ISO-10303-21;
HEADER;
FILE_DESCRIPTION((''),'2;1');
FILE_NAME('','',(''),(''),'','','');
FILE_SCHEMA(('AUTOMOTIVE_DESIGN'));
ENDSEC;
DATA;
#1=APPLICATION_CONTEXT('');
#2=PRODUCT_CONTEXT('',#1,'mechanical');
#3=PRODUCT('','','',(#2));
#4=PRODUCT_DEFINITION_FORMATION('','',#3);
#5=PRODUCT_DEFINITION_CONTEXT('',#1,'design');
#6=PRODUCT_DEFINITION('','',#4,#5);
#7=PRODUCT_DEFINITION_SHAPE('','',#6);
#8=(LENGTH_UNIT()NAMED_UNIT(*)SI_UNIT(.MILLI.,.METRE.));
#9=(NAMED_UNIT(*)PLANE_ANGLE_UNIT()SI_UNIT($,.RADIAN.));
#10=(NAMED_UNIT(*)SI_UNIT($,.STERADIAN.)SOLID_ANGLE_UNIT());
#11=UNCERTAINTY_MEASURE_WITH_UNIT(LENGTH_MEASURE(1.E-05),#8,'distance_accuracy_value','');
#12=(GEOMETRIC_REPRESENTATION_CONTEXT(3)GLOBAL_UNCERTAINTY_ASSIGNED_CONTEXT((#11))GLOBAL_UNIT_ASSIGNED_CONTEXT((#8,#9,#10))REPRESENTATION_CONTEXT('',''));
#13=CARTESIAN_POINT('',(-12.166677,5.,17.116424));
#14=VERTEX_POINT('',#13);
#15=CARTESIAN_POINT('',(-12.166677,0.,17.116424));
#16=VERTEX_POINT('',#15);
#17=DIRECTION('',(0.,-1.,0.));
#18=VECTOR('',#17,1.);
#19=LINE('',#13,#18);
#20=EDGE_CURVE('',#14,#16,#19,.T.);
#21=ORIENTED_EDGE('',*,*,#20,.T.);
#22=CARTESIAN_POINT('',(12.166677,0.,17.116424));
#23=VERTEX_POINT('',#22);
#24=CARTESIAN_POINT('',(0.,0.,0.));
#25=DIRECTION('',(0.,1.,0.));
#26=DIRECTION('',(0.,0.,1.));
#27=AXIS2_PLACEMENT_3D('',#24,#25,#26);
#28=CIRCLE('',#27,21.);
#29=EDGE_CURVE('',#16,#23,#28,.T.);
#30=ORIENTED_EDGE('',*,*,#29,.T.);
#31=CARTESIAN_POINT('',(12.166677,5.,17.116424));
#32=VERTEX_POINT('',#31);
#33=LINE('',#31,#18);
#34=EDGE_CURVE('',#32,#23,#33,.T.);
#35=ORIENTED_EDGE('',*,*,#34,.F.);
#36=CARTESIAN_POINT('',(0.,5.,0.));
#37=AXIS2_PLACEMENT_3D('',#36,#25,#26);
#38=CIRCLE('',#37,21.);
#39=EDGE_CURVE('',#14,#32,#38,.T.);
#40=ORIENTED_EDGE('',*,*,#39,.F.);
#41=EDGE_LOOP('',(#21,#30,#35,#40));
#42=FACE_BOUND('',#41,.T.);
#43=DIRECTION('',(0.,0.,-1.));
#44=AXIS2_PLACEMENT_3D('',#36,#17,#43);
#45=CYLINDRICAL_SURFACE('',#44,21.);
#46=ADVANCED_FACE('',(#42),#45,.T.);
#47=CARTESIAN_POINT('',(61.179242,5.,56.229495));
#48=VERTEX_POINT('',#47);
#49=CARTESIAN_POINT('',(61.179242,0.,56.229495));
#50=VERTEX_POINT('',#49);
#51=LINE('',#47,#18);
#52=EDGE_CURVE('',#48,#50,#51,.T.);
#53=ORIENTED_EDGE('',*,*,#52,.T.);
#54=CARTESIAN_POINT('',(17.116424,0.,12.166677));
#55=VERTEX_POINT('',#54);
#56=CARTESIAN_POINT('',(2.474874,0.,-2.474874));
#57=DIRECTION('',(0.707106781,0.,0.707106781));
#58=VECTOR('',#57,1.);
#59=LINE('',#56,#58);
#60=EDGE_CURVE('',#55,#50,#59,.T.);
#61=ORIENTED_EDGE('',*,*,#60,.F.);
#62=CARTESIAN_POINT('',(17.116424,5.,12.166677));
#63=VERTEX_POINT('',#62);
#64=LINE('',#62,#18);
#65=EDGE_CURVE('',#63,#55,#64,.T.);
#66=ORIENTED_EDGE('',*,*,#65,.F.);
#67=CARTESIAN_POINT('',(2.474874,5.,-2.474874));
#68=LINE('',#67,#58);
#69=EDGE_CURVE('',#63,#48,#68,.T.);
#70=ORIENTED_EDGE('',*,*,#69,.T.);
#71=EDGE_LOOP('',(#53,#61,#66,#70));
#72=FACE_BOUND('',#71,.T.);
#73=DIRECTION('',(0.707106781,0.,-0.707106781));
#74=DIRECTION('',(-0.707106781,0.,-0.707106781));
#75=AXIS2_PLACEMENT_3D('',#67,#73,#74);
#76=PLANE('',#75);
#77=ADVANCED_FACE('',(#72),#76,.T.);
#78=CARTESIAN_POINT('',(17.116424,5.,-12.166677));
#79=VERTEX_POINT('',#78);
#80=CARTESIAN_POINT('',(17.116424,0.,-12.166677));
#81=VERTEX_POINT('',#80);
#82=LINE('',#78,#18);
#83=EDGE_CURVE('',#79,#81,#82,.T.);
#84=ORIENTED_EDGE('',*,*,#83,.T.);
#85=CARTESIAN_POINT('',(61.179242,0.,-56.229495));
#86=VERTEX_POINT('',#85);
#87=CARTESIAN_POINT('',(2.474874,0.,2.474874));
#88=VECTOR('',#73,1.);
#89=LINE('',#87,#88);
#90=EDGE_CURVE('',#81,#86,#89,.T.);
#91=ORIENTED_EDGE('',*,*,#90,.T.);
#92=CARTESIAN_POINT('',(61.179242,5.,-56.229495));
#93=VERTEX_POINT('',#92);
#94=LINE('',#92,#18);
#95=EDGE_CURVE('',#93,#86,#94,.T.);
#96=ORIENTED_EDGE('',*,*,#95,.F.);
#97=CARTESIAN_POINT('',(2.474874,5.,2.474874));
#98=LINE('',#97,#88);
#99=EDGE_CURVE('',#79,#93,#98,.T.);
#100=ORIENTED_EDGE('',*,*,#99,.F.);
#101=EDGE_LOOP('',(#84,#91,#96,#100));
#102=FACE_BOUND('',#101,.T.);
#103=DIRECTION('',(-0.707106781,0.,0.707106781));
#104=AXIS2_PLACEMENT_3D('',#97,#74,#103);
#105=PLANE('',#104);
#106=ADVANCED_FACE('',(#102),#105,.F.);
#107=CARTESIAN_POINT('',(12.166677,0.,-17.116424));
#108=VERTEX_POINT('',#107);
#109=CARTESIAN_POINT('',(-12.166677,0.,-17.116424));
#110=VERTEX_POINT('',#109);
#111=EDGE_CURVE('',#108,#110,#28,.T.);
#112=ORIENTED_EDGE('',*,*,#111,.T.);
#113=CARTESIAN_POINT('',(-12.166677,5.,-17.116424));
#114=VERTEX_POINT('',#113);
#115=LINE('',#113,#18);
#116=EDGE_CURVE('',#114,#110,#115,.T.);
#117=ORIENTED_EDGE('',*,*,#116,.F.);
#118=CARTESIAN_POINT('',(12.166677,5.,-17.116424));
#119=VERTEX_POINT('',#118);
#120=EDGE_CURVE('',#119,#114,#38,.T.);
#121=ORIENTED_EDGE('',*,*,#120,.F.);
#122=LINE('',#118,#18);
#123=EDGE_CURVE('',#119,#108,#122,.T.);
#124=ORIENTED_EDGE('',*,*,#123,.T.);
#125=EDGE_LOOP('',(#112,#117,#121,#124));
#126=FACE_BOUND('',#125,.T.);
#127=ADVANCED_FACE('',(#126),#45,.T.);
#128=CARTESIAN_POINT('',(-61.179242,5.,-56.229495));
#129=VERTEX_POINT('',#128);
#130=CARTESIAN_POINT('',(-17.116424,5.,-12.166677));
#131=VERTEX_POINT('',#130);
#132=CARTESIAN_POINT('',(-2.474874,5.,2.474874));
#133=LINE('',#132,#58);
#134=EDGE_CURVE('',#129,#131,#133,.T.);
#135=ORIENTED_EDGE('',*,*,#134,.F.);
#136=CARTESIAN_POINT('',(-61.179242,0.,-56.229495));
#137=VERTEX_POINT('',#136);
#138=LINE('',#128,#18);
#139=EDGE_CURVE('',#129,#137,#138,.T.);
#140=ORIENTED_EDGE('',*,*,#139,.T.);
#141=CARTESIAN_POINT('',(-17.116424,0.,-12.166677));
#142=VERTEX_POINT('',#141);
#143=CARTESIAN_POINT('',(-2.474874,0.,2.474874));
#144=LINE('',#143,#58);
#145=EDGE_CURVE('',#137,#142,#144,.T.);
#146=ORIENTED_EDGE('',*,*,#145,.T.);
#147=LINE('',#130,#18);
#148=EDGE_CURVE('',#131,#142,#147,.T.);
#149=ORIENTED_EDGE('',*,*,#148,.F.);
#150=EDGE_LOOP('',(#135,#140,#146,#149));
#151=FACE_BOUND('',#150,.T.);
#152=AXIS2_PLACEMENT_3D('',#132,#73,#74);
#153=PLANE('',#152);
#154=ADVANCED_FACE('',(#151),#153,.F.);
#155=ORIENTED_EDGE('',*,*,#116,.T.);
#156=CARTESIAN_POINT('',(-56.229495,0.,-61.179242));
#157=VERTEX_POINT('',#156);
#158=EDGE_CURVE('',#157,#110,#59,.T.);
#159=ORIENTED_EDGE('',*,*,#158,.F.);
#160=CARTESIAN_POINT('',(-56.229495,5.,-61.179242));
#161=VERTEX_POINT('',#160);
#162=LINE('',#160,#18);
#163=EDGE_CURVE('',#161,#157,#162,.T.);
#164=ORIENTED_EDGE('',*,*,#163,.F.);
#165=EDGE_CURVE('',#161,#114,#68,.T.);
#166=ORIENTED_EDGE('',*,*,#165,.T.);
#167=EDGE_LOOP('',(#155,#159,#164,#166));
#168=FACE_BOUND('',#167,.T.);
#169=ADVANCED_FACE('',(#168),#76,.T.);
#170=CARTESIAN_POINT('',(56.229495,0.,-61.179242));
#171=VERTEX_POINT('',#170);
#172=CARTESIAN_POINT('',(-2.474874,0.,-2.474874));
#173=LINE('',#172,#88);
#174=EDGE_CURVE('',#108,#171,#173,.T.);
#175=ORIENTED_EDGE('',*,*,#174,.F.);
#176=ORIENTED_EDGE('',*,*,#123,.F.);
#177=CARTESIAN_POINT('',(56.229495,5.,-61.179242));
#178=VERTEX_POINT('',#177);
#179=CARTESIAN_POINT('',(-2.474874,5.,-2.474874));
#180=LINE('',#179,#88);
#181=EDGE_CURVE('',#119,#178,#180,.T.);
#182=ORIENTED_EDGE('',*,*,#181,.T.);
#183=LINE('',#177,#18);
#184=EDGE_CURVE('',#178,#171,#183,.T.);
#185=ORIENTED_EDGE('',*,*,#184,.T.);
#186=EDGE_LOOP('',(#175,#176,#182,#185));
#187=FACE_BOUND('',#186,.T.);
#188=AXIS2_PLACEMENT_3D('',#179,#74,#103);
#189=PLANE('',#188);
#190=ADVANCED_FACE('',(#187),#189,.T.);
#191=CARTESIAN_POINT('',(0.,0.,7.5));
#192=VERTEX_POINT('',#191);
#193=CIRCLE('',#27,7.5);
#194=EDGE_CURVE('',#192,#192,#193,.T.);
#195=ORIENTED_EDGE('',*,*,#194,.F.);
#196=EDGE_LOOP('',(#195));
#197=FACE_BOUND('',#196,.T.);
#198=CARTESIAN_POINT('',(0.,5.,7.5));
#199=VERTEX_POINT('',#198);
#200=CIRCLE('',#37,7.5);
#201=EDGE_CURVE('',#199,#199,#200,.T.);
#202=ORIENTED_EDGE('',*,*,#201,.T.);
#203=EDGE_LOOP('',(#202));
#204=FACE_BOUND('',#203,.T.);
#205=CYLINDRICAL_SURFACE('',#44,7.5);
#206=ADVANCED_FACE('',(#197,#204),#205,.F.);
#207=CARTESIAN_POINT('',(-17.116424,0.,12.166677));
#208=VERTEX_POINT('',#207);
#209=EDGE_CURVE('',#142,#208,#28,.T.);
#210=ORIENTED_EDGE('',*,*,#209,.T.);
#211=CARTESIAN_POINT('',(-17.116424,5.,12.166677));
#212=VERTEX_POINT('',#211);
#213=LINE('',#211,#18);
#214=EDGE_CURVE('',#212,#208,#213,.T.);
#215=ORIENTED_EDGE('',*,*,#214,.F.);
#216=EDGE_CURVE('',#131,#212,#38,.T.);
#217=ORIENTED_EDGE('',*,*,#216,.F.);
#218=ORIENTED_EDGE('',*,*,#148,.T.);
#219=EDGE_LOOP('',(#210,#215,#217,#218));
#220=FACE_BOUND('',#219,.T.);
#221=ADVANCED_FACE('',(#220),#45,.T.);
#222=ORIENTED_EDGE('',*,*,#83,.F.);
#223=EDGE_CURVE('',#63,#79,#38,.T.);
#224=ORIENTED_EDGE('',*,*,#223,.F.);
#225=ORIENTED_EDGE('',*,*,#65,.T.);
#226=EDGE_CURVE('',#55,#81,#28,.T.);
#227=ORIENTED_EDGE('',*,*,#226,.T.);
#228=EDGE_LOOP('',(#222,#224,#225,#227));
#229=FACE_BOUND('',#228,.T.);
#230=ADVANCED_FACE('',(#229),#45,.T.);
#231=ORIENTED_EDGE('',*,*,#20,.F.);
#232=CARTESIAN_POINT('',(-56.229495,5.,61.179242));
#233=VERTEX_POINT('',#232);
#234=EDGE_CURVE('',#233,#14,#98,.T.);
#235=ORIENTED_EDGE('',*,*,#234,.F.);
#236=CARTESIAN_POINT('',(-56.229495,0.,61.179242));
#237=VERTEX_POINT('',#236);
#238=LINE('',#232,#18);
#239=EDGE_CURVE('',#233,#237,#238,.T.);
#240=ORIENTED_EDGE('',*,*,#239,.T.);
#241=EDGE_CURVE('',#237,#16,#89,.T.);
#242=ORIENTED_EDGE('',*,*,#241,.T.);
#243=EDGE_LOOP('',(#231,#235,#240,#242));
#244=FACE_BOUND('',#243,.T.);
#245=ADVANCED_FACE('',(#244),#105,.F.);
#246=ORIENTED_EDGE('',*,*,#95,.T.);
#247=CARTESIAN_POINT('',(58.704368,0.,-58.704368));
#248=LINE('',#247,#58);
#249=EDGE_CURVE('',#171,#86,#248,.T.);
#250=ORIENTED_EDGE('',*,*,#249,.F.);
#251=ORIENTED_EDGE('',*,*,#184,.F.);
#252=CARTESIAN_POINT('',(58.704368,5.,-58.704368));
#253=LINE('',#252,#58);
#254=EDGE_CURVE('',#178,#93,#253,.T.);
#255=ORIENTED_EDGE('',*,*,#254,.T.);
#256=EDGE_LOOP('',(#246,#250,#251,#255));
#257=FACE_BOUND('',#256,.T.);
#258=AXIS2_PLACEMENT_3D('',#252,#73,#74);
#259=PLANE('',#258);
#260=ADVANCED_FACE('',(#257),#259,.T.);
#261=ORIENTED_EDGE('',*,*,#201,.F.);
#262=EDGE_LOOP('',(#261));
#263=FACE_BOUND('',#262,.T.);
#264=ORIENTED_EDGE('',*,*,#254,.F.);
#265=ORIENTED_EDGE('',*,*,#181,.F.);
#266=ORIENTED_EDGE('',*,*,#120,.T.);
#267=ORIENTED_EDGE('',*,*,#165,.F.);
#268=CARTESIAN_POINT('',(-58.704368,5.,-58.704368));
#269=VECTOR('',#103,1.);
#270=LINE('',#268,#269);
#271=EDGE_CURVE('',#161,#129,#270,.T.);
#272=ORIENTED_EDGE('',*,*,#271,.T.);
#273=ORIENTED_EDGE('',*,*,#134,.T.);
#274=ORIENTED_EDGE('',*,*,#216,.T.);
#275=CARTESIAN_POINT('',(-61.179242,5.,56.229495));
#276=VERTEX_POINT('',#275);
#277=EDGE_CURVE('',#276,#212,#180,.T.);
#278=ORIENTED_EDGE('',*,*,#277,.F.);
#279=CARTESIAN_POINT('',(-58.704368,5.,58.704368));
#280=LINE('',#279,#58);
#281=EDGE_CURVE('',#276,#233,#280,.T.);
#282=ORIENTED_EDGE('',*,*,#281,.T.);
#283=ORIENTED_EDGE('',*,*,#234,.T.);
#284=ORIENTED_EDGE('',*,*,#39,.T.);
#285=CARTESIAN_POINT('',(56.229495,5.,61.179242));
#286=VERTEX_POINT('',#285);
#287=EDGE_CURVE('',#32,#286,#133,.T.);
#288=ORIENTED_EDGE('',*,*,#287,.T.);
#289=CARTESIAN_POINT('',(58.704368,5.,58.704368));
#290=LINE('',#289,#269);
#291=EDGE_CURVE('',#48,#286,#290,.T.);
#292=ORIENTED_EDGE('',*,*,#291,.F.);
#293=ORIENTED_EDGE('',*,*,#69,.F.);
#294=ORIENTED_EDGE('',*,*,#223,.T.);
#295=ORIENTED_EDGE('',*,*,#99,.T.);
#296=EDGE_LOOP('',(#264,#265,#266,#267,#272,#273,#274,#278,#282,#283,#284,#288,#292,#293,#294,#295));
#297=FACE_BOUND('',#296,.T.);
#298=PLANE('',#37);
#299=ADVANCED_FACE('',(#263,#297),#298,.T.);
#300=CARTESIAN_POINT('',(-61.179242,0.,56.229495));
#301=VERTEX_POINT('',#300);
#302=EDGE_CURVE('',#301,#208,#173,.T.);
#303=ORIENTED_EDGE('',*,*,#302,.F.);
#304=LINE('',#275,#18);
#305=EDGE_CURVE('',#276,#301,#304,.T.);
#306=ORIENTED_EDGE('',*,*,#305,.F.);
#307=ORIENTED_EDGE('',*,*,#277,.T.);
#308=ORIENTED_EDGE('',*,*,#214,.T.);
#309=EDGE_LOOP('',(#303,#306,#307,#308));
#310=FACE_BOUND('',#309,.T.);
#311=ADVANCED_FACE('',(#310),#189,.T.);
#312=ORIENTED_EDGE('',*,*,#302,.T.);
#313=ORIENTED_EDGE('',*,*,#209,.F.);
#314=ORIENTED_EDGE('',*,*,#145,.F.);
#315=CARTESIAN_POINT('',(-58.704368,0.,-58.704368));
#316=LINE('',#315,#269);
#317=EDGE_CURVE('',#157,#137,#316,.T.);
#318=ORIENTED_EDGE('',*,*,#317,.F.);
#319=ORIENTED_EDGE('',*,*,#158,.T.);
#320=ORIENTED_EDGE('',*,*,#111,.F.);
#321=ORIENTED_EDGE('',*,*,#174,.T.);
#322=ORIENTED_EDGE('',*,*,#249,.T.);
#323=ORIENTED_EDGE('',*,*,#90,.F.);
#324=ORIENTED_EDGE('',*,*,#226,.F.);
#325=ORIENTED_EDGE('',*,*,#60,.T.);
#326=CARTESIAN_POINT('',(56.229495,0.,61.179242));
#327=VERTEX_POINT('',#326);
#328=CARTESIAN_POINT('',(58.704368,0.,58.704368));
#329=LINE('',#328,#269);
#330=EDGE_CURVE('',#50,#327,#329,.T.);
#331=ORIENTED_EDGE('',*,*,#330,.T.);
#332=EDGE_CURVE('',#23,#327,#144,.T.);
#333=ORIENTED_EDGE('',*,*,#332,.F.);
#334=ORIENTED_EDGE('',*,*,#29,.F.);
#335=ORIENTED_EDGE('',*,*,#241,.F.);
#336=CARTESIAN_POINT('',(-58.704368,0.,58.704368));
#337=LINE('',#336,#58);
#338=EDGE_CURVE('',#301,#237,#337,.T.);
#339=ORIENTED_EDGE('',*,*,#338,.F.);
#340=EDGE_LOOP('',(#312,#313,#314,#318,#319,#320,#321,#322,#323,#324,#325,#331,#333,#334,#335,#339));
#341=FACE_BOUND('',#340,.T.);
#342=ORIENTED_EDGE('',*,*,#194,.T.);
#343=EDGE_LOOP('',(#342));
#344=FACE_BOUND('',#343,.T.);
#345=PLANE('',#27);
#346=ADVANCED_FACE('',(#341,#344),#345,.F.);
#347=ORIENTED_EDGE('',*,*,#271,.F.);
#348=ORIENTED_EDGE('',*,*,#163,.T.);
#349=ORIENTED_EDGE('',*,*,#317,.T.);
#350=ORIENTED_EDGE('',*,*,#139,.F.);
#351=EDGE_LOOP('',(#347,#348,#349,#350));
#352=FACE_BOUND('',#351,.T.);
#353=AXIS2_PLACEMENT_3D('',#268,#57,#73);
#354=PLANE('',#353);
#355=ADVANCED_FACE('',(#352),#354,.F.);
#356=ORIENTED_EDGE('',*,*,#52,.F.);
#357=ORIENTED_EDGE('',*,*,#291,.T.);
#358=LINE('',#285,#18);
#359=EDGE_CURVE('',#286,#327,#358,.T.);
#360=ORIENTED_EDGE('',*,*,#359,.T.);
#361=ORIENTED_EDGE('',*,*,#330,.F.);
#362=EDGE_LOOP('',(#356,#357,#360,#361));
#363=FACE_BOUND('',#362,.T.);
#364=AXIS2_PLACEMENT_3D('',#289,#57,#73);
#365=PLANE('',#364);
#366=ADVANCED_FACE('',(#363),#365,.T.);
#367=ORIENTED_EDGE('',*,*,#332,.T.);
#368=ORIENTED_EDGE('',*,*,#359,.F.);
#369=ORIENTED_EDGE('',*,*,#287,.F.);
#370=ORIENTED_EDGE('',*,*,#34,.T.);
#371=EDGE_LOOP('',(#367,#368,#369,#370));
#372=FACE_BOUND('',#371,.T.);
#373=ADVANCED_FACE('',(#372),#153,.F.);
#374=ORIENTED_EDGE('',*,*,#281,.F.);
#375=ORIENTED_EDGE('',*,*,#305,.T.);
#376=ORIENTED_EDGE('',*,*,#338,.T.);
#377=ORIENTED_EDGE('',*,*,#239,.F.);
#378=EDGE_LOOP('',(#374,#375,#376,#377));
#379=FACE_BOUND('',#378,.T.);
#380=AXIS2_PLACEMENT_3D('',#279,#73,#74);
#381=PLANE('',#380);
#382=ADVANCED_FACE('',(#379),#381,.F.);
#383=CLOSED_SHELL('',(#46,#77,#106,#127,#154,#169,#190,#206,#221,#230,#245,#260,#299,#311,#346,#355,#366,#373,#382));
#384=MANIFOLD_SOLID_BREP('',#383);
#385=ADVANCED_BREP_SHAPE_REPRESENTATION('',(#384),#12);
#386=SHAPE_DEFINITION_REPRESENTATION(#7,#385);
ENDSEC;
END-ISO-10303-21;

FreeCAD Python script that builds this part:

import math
import FreeCAD as App
import Part
import Sketcher

V = App.Vector
Q = App.Units.Quantity

doc = App.newDocument("Part")
body = doc.addObject("PartDesign::Body", "Body")

# Sketch on XZ plane
sketch1 = body.newObject("Sketcher::SketchObject", "Sketch")
sketch1.AttachmentSupport = (doc.getObject("XZ_Plane"), [""])
sketch1.MapMode = "FlatFace"
sketch1.addGeometry([
    Part.LineSegment(V(-17, 12, 0), V(-61, 56, 0)),  # 0
    Part.LineSegment(V(-61, 56, 0), V(-56, 61, 0)),  # 1
    Part.LineSegment(V(-56, 61, 0), V(-12, 17, 0)),  # 2
    Part.ArcOfCircle(Part.Circle(V(0, 0, 0), V(0, 0, 1), 21), math.radians(55), math.radians(125)),  # 3
    Part.LineSegment(V(12, 17, 0), V(56, 61, 0)),  # 4
    Part.LineSegment(V(56, 61, 0), V(61, 56, 0)),  # 5
    Part.LineSegment(V(61, 56, 0), V(17, 12, 0)),  # 6
    Part.ArcOfCircle(Part.Circle(V(0, 0, 0), V(0, 0, 1), 21), math.radians(-35), math.radians(35)),  # 7
    Part.LineSegment(V(17, -12, 0), V(61, -56, 0)),  # 8
    Part.LineSegment(V(61, -56, 0), V(56, -61, 0)),  # 9
    Part.LineSegment(V(56, -61, 0), V(12, -17, 0)),  # 10
    Part.ArcOfCircle(Part.Circle(V(0, 0, 0), V(0, 0, 1), 21), math.radians(-125), math.radians(-55)),  # 11
    Part.LineSegment(V(-12, -17, 0), V(-56, -61, 0)),  # 12
    Part.LineSegment(V(-56, -61, 0), V(-61, -56, 0)),  # 13
    Part.LineSegment(V(-61, -56, 0), V(-17, -12, 0)),  # 14
    Part.ArcOfCircle(Part.Circle(V(0, 0, 0), V(0, 0, 1), 21), math.radians(145), math.radians(215)),  # 15
    Part.Circle(V(0, 0, 0), V(0, 0, 1), 8),  # 16
], False)
sketch1.addConstraint([
    Sketcher.Constraint("Coincident", 0, 2, 1, 1),
    Sketcher.Constraint("Coincident", 1, 2, 2, 1),
    Sketcher.Constraint("Coincident", 2, 2, 3, 2),
    Sketcher.Constraint("Coincident", 3, 1, 4, 1),
    Sketcher.Constraint("Coincident", 4, 2, 5, 1),
    Sketcher.Constraint("Coincident", 5, 2, 6, 1),
    Sketcher.Constraint("Coincident", 6, 2, 7, 2),
    Sketcher.Constraint("Coincident", 7, 1, 8, 1),
    Sketcher.Constraint("Coincident", 8, 2, 9, 1),
    Sketcher.Constraint("Coincident", 9, 2, 10, 1),
    Sketcher.Constraint("Coincident", 10, 2, 11, 2),
    Sketcher.Constraint("Coincident", 11, 1, 12, 1),
    Sketcher.Constraint("Coincident", 12, 2, 13, 1),
    Sketcher.Constraint("Coincident", 13, 2, 14, 1),
    Sketcher.Constraint("Coincident", 14, 2, 15, 2),
    Sketcher.Constraint("Coincident", 15, 1, 0, 1),
    Sketcher.Constraint("Coincident", 3, 3, -1, 1),
    Sketcher.Constraint("Coincident", 7, 3, -1, 1),
    Sketcher.Constraint("Coincident", 11, 3, -1, 1),
    Sketcher.Constraint("Coincident", 15, 3, -1, 1),
    Sketcher.Constraint("Coincident", 16, 3, -1, 1),
    Sketcher.Constraint("Equal", 3, 7),
    Sketcher.Constraint("Equal", 7, 11),
    Sketcher.Constraint("Equal", 11, 15),
    Sketcher.Constraint("Symmetric", 0, 2, 8, 2, -1, 1),
    Sketcher.Constraint("Symmetric", 1, 2, 9, 2, -1, 1),
    Sketcher.Constraint("Symmetric", 4, 2, 12, 2, -1, 1),
    Sketcher.Constraint("Symmetric", 5, 2, 13, 2, -1, 1),
    Sketcher.Constraint("Symmetric", 1, 2, 4, 2, -2),
    Sketcher.Constraint("Symmetric", 0, 2, 5, 2, -2),
    Sketcher.Constraint("Perpendicular", 0, 1),
    Sketcher.Constraint("Perpendicular", 1, 2),
    Sketcher.Constraint("Perpendicular", 2, 4),
    Sketcher.Constraint("Perpendicular", 4, 5),
    Sketcher.Constraint("Perpendicular", 5, 6),
    Sketcher.Constraint("Perpendicular", 6, 8),
    Sketcher.Constraint("Perpendicular", 9, 10),
    Sketcher.Constraint("Perpendicular", 10, 12),
    Sketcher.Constraint("Perpendicular", 13, 14),
    Sketcher.Constraint("Equal", 0, 2),
    Sketcher.Constraint("Diameter", 16, Q("15 mm")),
    Sketcher.Constraint("Radius", 3, Q("21 mm")),
    Sketcher.Constraint("Distance", 1, Q("7 mm")),
    Sketcher.Constraint("DistanceX", 2, 2, 4, 2, Q("68.396171 mm")),
])
pad1 = body.newObject("PartDesign::Pad", "Pad")
pad1.Profile = sketch1
pad1.Length = 5
pad1.Reversed = True

doc.recompute()
